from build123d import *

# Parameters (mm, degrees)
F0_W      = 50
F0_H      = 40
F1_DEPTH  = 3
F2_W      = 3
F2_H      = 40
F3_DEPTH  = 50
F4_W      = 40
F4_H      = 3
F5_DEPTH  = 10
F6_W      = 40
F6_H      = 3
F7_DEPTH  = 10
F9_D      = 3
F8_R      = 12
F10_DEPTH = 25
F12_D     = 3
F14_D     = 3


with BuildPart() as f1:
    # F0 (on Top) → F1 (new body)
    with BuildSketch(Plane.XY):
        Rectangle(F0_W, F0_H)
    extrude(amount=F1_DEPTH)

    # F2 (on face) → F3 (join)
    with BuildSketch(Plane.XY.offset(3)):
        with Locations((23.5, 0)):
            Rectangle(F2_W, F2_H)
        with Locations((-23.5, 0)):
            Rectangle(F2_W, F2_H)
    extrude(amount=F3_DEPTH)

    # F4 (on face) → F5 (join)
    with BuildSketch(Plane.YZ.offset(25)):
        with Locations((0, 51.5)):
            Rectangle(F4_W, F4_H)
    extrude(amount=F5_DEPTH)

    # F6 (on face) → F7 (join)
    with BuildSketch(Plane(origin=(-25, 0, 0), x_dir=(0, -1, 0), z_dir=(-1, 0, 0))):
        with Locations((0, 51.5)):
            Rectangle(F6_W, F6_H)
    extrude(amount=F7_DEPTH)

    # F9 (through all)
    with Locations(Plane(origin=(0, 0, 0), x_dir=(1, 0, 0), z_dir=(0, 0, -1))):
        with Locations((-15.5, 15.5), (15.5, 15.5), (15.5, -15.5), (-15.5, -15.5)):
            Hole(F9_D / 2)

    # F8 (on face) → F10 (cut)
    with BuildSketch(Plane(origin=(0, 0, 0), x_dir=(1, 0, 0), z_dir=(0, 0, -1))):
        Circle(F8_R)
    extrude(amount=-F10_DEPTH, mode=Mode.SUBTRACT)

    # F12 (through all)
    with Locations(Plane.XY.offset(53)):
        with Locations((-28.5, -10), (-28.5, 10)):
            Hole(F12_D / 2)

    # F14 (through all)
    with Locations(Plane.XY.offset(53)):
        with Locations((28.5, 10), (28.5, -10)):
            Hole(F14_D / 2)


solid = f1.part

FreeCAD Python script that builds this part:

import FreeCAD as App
import Part
import Sketcher
Q = App.Units.Quantity


def add_polygon(sketch, points):
    """Adds a closed chain of lines whose ends are joined by coincident constraints."""
    first, n = sketch.GeometryCount, len(points)
    for a, b in zip(points, points[1:] + points[:1]):
        sketch.addGeometry(Part.LineSegment(App.Vector(*a, 0), App.Vector(*b, 0)), False)
    for i in range(n):
        sketch.addConstraint(Sketcher.Constraint("Coincident", first + i, 2, first + (i + 1) % n, 1))

doc = App.newDocument("Part")
body = doc.addObject("PartDesign::Body", "Body")

# Sketch on XY plane
sketch1 = body.newObject("Sketcher::SketchObject", "Sketch")
sketch1.AttachmentSupport = (doc.getObject("XY_Plane"), [""])
sketch1.MapMode = "FlatFace"
add_polygon(sketch1, [(-25, 20), (-25, -20), (25, -20), (25, 20)])  # lines 0-3
sketch1.addConstraint([
    Sketcher.Constraint("Vertical", 0),
    Sketcher.Constraint("Horizontal", 1),
    Sketcher.Constraint("Vertical", 2),
    Sketcher.Constraint("Horizontal", 3),
    Sketcher.Constraint("Symmetric", 0, 2, 2, 2, -1, 1),
    Sketcher.Constraint("DistanceX", 1, 1, 1, 2, Q("50 mm")),
    Sketcher.Constraint("DistanceY", 0, 2, 0, 1, Q("40 mm")),
])
pad1 = body.newObject("PartDesign::Pad", "Pad")
pad1.Profile = sketch1
pad1.Length = 3

# Sketch on XY plane
sketch2 = body.newObject("Sketcher::SketchObject", "Sketch001")
sketch2.AttachmentSupport = (doc.getObject("XY_Plane"), [""])
sketch2.MapMode = "FlatFace"
sketch2.AttachmentOffset = App.Placement(App.Vector(0, 0, 3), App.Rotation())
add_polygon(sketch2, [(22, 20), (22, -20), (25, -20), (25, 20)])  # lines 0-3
add_polygon(sketch2, [(-25, 20), (-25, -20), (-22, -20), (-22, 20)])  # lines 4-7
sketch2.addConstraint([
    Sketcher.Constraint("Vertical", 0),
    Sketcher.Constraint("Horizontal", 1),
    Sketcher.Constraint("Vertical", 2),
    Sketcher.Constraint("Horizontal", 3),
    Sketcher.Constraint("Vertical", 4),
    Sketcher.Constraint("Horizontal", 5),
    Sketcher.Constraint("Vertical", 6),
    Sketcher.Constraint("Horizontal", 7),
    Sketcher.Constraint("Symmetric", 2, 2, 4, 2, -1, 1),
    Sketcher.Constraint("Symmetric", 0, 2, 6, 2, -1, 1),
    Sketcher.Constraint("Horizontal", 1, 2, 4, 2),
    Sketcher.Constraint("DistanceX", 1, 1, 1, 2, Q("3 mm")),
    Sketcher.Constraint("DistanceY", 0, 2, 0, 1, Q("40 mm")),
    Sketcher.Constraint("DistanceX", -1, 1, 0, 2, Q("22 mm")),
])
pad2 = body.newObject("PartDesign::Pad", "Pad001")
pad2.Profile = sketch2
pad2.Length = 50

# Sketch on YZ plane
sketch3 = body.newObject("Sketcher::SketchObject", "Sketch002")
sketch3.AttachmentSupport = (doc.getObject("YZ_Plane"), [""])
sketch3.MapMode = "FlatFace"
sketch3.AttachmentOffset = App.Placement(App.Vector(0, 0, 25), App.Rotation())
add_polygon(sketch3, [(-20, 53), (-20, 50), (20, 50), (20, 53)])  # lines 0-3
sketch3.addConstraint([
    Sketcher.Constraint("Vertical", 0),
    Sketcher.Constraint("Horizontal", 1),
    Sketcher.Constraint("Vertical", 2),
    Sketcher.Constraint("Horizontal", 3),
    Sketcher.Constraint("DistanceX", 1, 1, 1, 2, Q("40 mm")),
    Sketcher.Constraint("DistanceY", 0, 2, 0, 1, Q("3 mm")),
    Sketcher.Constraint("DistanceX", 0, 2, -1, 1, Q("20 mm")),
    Sketcher.Constraint("DistanceY", -1, 1, 0, 2, Q("50 mm")),
])
pad3 = body.newObject("PartDesign::Pad", "Pad002")
pad3.Profile = sketch3
pad3.Length = 10

# Sketch on YZ plane
sketch4 = body.newObject("Sketcher::SketchObject", "Sketch003")
sketch4.AttachmentSupport = (doc.getObject("YZ_Plane"), [""])
sketch4.MapMode = "FlatFace"
sketch4.AttachmentOffset = App.Placement(App.Vector(0, 0, -25), App.Rotation())
add_polygon(sketch4, [(20, 53), (20, 50), (-20, 50), (-20, 53)])  # lines 0-3
sketch4.addConstraint([
    Sketcher.Constraint("Vertical", 0),
    Sketcher.Constraint("Horizontal", 1),
    Sketcher.Constraint("Vertical", 2),
    Sketcher.Constraint("Horizontal", 3),
    Sketcher.Constraint("DistanceX", 1, 2, 1, 1, Q("40 mm")),
    Sketcher.Constraint("DistanceY", 0, 2, 0, 1, Q("3 mm")),
    Sketcher.Constraint("DistanceX", -1, 1, 0, 2, Q("20 mm")),
    Sketcher.Constraint("DistanceY", -1, 1, 0, 2, Q("50 mm")),
])
pad4 = body.newObject("PartDesign::Pad", "Pad003")
pad4.Profile = sketch4
pad4.Length = 10
pad4.Reversed = True

# Sketch on XY plane
sketch5 = body.newObject("Sketcher::SketchObject", "Sketch004")
sketch5.AttachmentSupport = (doc.getObject("XY_Plane"), [""])
sketch5.MapMode = "FlatFace"
sketch5.addGeometry([
    Part.Circle(App.Vector(-15.5, -15.5, 0), App.Vector(0, 0, 1), 1.5),
    Part.Circle(App.Vector(15.5, -15.5, 0), App.Vector(0, 0, 1), 1.5),
    Part.Circle(App.Vector(15.5, 15.5, 0), App.Vector(0, 0, 1), 1.5),
    Part.Circle(App.Vector(-15.5, 15.5, 0), App.Vector(0, 0, 1), 1.5),
], False)
sketch5.addConstraint([
    Sketcher.Constraint("Equal", 0, 1),
    Sketcher.Constraint("Equal", 1, 2),
    Sketcher.Constraint("Equal", 2, 3),
    Sketcher.Constraint("Symmetric", 0, 3, 2, 3, -1, 1),
    Sketcher.Constraint("Symmetric", 1, 3, 3, 3, -1, 1),
    Sketcher.Constraint("Symmetric", 0, 3, 1, 3, -2),
    Sketcher.Constraint("Diameter", 0, Q("3 mm")),
    Sketcher.Constraint("DistanceX", 0, 3, 1, 3, Q("31 mm")),
    Sketcher.Constraint("DistanceY", 1, 3, 2, 3, Q("31 mm")),
])
doc.recompute()
hole = body.newObject("PartDesign::Hole", "Hole")
hole.Profile = sketch5
hole.ThreadType = "None"
hole.Diameter = 3
hole.DepthType = "ThroughAll"
hole.Reversed = True

# Sketch on XY plane
sketch6 = body.newObject("Sketcher::SketchObject", "Sketch005")
sketch6.AttachmentSupport = (doc.getObject("XY_Plane"), [""])
sketch6.MapMode = "FlatFace"
sketch6.addGeometry(Part.Circle(App.Vector(0, 0, 0), App.Vector(0, 0, 1), 12), False)
sketch6.addConstraint([
    Sketcher.Constraint("Coincident", 0, 3, -1, 1),
    Sketcher.Constraint("Diameter", 0, Q("24 mm")),
])
pocket1 = body.newObject("PartDesign::Pocket", "Pocket")
pocket1.Profile = sketch6
pocket1.Length = 25
pocket1.Reversed = True

# Sketch on XY plane
sketch7 = body.newObject("Sketcher::SketchObject", "Sketch006")
sketch7.AttachmentSupport = (doc.getObject("XY_Plane"), [""])
sketch7.MapMode = "FlatFace"
sketch7.AttachmentOffset = App.Placement(App.Vector(0, 0, 53), App.Rotation())
sketch7.addGeometry([
    Part.Circle(App.Vector(-28.5, -10, 0), App.Vector(0, 0, 1), 1.5),
    Part.Circle(App.Vector(-28.5, 10, 0), App.Vector(0, 0, 1), 1.5),
], False)
sketch7.addConstraint([
    Sketcher.Constraint("Equal", 0, 1),
    Sketcher.Constraint("Symmetric", 0, 3, 1, 3, -1),
    Sketcher.Constraint("Diameter", 0, Q("3 mm")),
    Sketcher.Constraint("DistanceY", 0, 3, -1, 1, Q("10 mm")),
    Sketcher.Constraint("DistanceX", 0, 3, -1, 1, Q("28.5 mm")),
])
doc.recompute()
hole2 = body.newObject("PartDesign::Hole", "Hole001")
hole2.Profile = sketch7
hole2.ThreadType = "None"
hole2.Diameter = 3
hole2.DepthType = "ThroughAll"

# Sketch on XY plane
sketch8 = body.newObject("Sketcher::SketchObject", "Sketch007")
sketch8.AttachmentSupport = (doc.getObject("XY_Plane"), [""])
sketch8.MapMode = "FlatFace"
sketch8.AttachmentOffset = App.Placement(App.Vector(0, 0, 53), App.Rotation())
sketch8.addGeometry([
    Part.Circle(App.Vector(28.5, 10, 0), App.Vector(0, 0, 1), 1.5),
    Part.Circle(App.Vector(28.5, -10, 0), App.Vector(0, 0, 1), 1.5),
], False)
sketch8.addConstraint([
    Sketcher.Constraint("Equal", 0, 1),
    Sketcher.Constraint("Symmetric", 0, 3, 1, 3, -1),
    Sketcher.Constraint("Diameter", 0, Q("3 mm")),
    Sketcher.Constraint("DistanceY", -1, 1, 0, 3, Q("10 mm")),
    Sketcher.Constraint("DistanceX", -1, 1, 0, 3, Q("28.5 mm")),
])
doc.recompute()
hole3 = body.newObject("PartDesign::Hole", "Hole002")
hole3.Profile = sketch8
hole3.ThreadType = "None"
hole3.Diameter = 3
hole3.DepthType = "ThroughAll"

doc.recompute()
